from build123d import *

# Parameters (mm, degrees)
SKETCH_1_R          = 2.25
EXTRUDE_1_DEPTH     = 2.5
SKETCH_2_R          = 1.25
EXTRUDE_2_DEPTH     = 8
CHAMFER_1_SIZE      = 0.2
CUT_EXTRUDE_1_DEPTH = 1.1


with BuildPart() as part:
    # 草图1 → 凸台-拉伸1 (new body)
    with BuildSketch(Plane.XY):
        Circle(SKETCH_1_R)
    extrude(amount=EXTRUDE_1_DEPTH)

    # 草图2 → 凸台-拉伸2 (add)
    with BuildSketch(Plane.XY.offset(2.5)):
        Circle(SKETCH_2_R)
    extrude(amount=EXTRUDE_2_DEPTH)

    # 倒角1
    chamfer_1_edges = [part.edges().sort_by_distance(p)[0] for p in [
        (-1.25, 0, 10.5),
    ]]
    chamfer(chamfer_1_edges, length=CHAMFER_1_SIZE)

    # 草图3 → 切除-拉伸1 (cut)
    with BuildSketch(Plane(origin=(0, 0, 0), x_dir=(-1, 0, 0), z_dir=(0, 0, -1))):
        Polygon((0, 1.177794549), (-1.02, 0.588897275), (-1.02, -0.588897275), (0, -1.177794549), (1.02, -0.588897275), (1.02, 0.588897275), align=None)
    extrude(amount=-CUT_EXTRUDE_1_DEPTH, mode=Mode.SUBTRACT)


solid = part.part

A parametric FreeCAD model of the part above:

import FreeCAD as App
import Part
import Sketcher
from FreeCAD import Vector
Q = App.Units.Quantity


def edges_at(feature, points):
    """Names of the edges that pass closest to the given points."""
    edges = feature.Shape.Edges
    near = lambda p: min(range(len(edges)), key=lambda i: edges[i].distToShape(Part.Vertex(*p))[0])
    return sorted({f"Edge{near(p) + 1}" for p in points})


def add_polygon(sketch, points):
    """Adds a closed chain of lines whose ends are joined by coincident constraints."""
    first, n = sketch.GeometryCount, len(points)
    for a, b in zip(points, points[1:] + points[:1]):
        sketch.addGeometry(Part.LineSegment(App.Vector(*a, 0), App.Vector(*b, 0)), False)
    for i in range(n):
        sketch.addConstraint(Sketcher.Constraint("Coincident", first + i, 2, first + (i + 1) % n, 1))

doc = App.newDocument("Part")
body = doc.addObject("PartDesign::Body", "Body")

# Sketch on XY plane
sketch1 = body.newObject("Sketcher::SketchObject", "Sketch")
sketch1.AttachmentSupport = (doc.getObject("XY_Plane"), [""])
sketch1.MapMode = "FlatFace"
sketch1.addGeometry(Part.Circle(Vector(0, 0, 0), Vector(0, 0, 1), 2.2), False)
sketch1.addConstraint([
    Sketcher.Constraint("Coincident", 0, 3, -1, 1),
    Sketcher.Constraint("Diameter", 0, Q("4.5 mm")),
])
pad1 = body.newObject("PartDesign::Pad", "Pad")
pad1.Profile = sketch1
pad1.Length = 2.5

# Sketch on XY plane
sketch2 = body.newObject("Sketcher::SketchObject", "Sketch001")
sketch2.AttachmentSupport = (doc.getObject("XY_Plane"), [""])
sketch2.MapMode = "FlatFace"
sketch2.AttachmentOffset = App.Placement(Vector(0, 0, 2.5), App.Rotation())
sketch2.addGeometry(Part.Circle(Vector(0, 0, 0), Vector(0, 0, 1), 1.2), False)
sketch2.addConstraint([
    Sketcher.Constraint("Coincident", 0, 3, -1, 1),
    Sketcher.Constraint("Diameter", 0, Q("2.5 mm")),
])
pad2 = body.newObject("PartDesign::Pad", "Pad001")
pad2.Profile = sketch2
pad2.Length = 8
doc.recompute()

chamfer = body.newObject("PartDesign::Chamfer", "Chamfer")
chamfer.Base = (pad2, edges_at(pad2, [(-1.25, 0, 10.5)]))
chamfer.Size = 0.2

# Sketch on XY plane
sketch3 = body.newObject("Sketcher::SketchObject", "Sketch002")
sketch3.AttachmentSupport = (doc.getObject("XY_Plane"), [""])
sketch3.MapMode = "FlatFace"
add_polygon(sketch3, [(0, 1.2), (1, 0.6), (1, -0.6), (0, -1.2), (-1, -0.6), (-1, 0.6)])  # lines 0-5
sketch3.addConstraint([
    Sketcher.Constraint("Vertical", 1),
    Sketcher.Constraint("Vertical", 4),
    Sketcher.Constraint("Symmetric", 0, 2, 3, 2, -1, 1),
    Sketcher.Constraint("Symmetric", 2, 2, 5, 2, -1, 1),
    Sketcher.Constraint("PointOnObject", 2, 2, -2),
    Sketcher.Constraint("Parallel", 2, 5),
    Sketcher.Constraint("Horizontal", 1, 2, 3, 2),
    Sketcher.Constraint("Angle", 0, Q("-30 deg")),
    Sketcher.Constraint("DistanceX", -1, 1, 0, 2, Q("1.02 mm")),
    Sketcher.Constraint("DistanceY", 1, 2, 1, 1, Q("1.177795 mm")),
])
pocket1 = body.newObject("PartDesign::Pocket", "Pocket")
pocket1.Profile = sketch3
pocket1.Length = 1.1
pocket1.Reversed = True

doc.recompute()
